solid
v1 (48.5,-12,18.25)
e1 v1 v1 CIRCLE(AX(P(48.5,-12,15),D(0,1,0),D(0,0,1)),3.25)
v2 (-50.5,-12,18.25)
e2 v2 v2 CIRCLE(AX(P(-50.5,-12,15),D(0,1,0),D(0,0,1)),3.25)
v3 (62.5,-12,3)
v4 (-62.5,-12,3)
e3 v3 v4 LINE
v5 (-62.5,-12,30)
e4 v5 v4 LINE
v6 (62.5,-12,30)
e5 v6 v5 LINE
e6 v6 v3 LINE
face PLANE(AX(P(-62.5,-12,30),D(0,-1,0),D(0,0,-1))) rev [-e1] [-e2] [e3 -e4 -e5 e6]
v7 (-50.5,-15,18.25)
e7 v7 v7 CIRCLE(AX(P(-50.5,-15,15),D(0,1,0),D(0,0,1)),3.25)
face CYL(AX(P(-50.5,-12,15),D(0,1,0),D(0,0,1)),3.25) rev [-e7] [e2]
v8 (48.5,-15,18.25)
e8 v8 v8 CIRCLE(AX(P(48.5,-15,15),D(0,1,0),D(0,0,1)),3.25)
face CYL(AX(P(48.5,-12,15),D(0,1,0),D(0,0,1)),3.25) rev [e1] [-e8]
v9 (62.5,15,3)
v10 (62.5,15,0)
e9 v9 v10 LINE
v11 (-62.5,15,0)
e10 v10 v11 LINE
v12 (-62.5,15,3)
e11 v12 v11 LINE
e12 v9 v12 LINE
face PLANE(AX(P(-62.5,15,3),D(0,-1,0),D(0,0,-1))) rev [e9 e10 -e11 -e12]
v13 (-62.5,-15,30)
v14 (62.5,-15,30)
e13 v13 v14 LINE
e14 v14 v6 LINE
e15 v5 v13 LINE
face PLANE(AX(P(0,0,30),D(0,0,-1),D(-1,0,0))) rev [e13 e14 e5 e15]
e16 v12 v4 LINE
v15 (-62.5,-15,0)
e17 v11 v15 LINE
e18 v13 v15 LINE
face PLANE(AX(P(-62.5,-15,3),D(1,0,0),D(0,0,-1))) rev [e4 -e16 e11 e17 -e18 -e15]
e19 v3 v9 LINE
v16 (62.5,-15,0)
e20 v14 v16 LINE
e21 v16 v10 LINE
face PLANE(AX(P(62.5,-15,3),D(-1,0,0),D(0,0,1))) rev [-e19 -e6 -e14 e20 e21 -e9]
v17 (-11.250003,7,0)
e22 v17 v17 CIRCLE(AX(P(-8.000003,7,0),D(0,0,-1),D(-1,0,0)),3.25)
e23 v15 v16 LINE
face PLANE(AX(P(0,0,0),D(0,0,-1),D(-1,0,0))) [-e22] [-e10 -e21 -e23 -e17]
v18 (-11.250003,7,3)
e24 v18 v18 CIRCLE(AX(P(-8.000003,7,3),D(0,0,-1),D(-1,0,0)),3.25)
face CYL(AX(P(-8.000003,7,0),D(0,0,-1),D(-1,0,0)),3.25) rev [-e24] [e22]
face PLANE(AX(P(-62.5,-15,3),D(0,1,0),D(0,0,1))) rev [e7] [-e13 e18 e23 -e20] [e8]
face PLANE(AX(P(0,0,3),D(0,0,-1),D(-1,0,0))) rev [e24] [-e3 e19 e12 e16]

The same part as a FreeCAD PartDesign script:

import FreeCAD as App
import Part
import Sketcher

doc = App.newDocument("Part")
body = doc.addObject("PartDesign::Body", "Body")

# Sketch on XY plane
sketch1 = body.newObject("Sketcher::SketchObject", "Sketch")
sketch1.AttachmentSupport = (doc.getObject("XY_Plane"), [""])
sketch1.MapMode = "FlatFace"
sketch1.addGeometry(Part.LineSegment(App.Vector(-62, 15, 0), App.Vector(-62, -15, 0)), False)
sketch1.addGeometry(Part.LineSegment(App.Vector(-62, -15, 0), App.Vector(62, -15, 0)), False)
sketch1.addGeometry(Part.LineSegment(App.Vector(62, -15, 0), App.Vector(62, 15, 0)), False)
sketch1.addGeometry(Part.LineSegment(App.Vector(62, 15, 0), App.Vector(-62, 15, 0)), False)
sketch1.addConstraint(Sketcher.Constraint("Coincident", 0, 2, 1, 1))
sketch1.addConstraint(Sketcher.Constraint("Coincident", 1, 2, 2, 1))
sketch1.addConstraint(Sketcher.Constraint("Coincident", 2, 2, 3, 1))
sketch1.addConstraint(Sketcher.Constraint("Coincident", 3, 2, 0, 1))
sketch1.addConstraint(Sketcher.Constraint("Vertical", 0))
sketch1.addConstraint(Sketcher.Constraint("Horizontal", 1))
sketch1.addConstraint(Sketcher.Constraint("Vertical", 2))
sketch1.addConstraint(Sketcher.Constraint("Horizontal", 3))
sketch1.addConstraint(Sketcher.Constraint("Symmetric", 0, 2, 2, 2, -1, 1))
sketch1.addConstraint(Sketcher.Constraint("DistanceX", 1, 1, 1, 2, 125.0))
sketch1.addConstraint(Sketcher.Constraint("DistanceY", 0, 2, 0, 1, 30.0))
pad1 = body.newObject("PartDesign::Pad", "Pad")
pad1.Profile = sketch1
pad1.Length = 3

# Sketch on XY plane
sketch2 = body.newObject("Sketcher::SketchObject", "Sketch001")
sketch2.AttachmentSupport = (doc.getObject("XY_Plane"), [""])
sketch2.MapMode = "FlatFace"
sketch2.AttachmentOffset = App.Placement(App.Vector(0, 0, 3), App.Rotation())
sketch2.addGeometry(Part.LineSegment(App.Vector(-62.5, -12, 0), App.Vector(-62.5, -15, 0)), False)
sketch2.addGeometry(Part.LineSegment(App.Vector(-62.5, -15, 0), App.Vector(62.5, -15, 0)), False)
sketch2.addGeometry(Part.LineSegment(App.Vector(62.5, -15, 0), App.Vector(62.5, -12, 0)), False)
sketch2.addGeometry(Part.LineSegment(App.Vector(62.5, -12, 0), App.Vector(-62.5, -12, 0)), False)
sketch2.addConstraint(Sketcher.Constraint("Coincident", 0, 2, 1, 1))
sketch2.addConstraint(Sketcher.Constraint("Coincident", 1, 2, 2, 1))
sketch2.addConstraint(Sketcher.Constraint("Coincident", 2, 2, 3, 1))
sketch2.addConstraint(Sketcher.Constraint("Coincident", 3, 2, 0, 1))
sketch2.addConstraint(Sketcher.Constraint("Vertical", 0))
sketch2.addConstraint(Sketcher.Constraint("Horizontal", 1))
sketch2.addConstraint(Sketcher.Constraint("Vertical", 2))
sketch2.addConstraint(Sketcher.Constraint("Horizontal", 3))
sketch2.addConstraint(Sketcher.Constraint("DistanceX", 1, 1, 1, 2, 125.0))
sketch2.addConstraint(Sketcher.Constraint("DistanceY", 0, 2, 0, 1, 3.0))
sketch2.addConstraint(Sketcher.Constraint("DistanceY", 0, 2, -1, 1, 15.0))
sketch2.addConstraint(Sketcher.Constraint("DistanceX", 0, 2, -1, 1, 62.5))
pad2 = body.newObject("PartDesign::Pad", "Pad001")
pad2.Profile = sketch2
pad2.Length = 27

# Sketch on XZ plane
sketch3 = body.newObject("Sketcher::SketchObject", "Sketch002")
sketch3.AttachmentSupport = (doc.getObject("XZ_Plane"), [""])
sketch3.MapMode = "FlatFace"
sketch3.AttachmentOffset = App.Placement(App.Vector(0, 0, 12), App.Rotation())
sketch3.addGeometry(Part.Circle(App.Vector(48.5, 15, 0), App.Vector(0, 0, 1), 3.2), False)
sketch3.addGeometry(Part.Circle(App.Vector(-50.5, 15, 0), App.Vector(0, 0, 1), 3.2), False)
sketch3.addConstraint(Sketcher.Constraint("Equal", 0, 1))
sketch3.addConstraint(Sketcher.Constraint("Horizontal", 0, 3, 1, 3))
sketch3.addConstraint(Sketcher.Constraint("Diameter", 0, 6.5))
sketch3.addConstraint(Sketcher.Constraint("DistanceY", -1, 1, 0, 3, 15.0))
sketch3.addConstraint(Sketcher.Constraint("DistanceX", 1, 3, 0, 3, 99.0))
sketch3.addConstraint(Sketcher.Constraint("DistanceX", -1, 1, 0, 3, 48.5))
doc.recompute()
hole = body.newObject("PartDesign::Hole", "Hole")
hole.Profile = sketch3
hole.ThreadType = "None"
hole.Diameter = 6.5
hole.DepthType = "Dimension"
hole.Depth = 10
hole.DrillPoint = "Angled"
hole.DrillPointAngle = 118
hole.Reversed = True

# Sketch on XY plane
sketch4 = body.newObject("Sketcher::SketchObject", "Sketch003")
sketch4.AttachmentSupport = (doc.getObject("XY_Plane"), [""])
sketch4.MapMode = "FlatFace"
sketch4.addGeometry(Part.Circle(App.Vector(-8, 7, 0), App.Vector(0, 0, 1), 3.2), False)
sketch4.addConstraint(Sketcher.Constraint("Diameter", 0, 6.5))
sketch4.addConstraint(Sketcher.Constraint("DistanceY", -1, 1, 0, 3, 7.0))
sketch4.addConstraint(Sketcher.Constraint("DistanceX", 0, 3, -1, 1, 8.000003))
doc.recompute()
hole2 = body.newObject("PartDesign::Hole", "Hole001")
hole2.Profile = sketch4
hole2.ThreadType = "None"
hole2.Diameter = 6.5
hole2.DepthType = "Dimension"
hole2.Depth = 32
hole2.DrillPoint = "Angled"
hole2.DrillPointAngle = 118
hole2.Reversed = True

doc.recompute()
